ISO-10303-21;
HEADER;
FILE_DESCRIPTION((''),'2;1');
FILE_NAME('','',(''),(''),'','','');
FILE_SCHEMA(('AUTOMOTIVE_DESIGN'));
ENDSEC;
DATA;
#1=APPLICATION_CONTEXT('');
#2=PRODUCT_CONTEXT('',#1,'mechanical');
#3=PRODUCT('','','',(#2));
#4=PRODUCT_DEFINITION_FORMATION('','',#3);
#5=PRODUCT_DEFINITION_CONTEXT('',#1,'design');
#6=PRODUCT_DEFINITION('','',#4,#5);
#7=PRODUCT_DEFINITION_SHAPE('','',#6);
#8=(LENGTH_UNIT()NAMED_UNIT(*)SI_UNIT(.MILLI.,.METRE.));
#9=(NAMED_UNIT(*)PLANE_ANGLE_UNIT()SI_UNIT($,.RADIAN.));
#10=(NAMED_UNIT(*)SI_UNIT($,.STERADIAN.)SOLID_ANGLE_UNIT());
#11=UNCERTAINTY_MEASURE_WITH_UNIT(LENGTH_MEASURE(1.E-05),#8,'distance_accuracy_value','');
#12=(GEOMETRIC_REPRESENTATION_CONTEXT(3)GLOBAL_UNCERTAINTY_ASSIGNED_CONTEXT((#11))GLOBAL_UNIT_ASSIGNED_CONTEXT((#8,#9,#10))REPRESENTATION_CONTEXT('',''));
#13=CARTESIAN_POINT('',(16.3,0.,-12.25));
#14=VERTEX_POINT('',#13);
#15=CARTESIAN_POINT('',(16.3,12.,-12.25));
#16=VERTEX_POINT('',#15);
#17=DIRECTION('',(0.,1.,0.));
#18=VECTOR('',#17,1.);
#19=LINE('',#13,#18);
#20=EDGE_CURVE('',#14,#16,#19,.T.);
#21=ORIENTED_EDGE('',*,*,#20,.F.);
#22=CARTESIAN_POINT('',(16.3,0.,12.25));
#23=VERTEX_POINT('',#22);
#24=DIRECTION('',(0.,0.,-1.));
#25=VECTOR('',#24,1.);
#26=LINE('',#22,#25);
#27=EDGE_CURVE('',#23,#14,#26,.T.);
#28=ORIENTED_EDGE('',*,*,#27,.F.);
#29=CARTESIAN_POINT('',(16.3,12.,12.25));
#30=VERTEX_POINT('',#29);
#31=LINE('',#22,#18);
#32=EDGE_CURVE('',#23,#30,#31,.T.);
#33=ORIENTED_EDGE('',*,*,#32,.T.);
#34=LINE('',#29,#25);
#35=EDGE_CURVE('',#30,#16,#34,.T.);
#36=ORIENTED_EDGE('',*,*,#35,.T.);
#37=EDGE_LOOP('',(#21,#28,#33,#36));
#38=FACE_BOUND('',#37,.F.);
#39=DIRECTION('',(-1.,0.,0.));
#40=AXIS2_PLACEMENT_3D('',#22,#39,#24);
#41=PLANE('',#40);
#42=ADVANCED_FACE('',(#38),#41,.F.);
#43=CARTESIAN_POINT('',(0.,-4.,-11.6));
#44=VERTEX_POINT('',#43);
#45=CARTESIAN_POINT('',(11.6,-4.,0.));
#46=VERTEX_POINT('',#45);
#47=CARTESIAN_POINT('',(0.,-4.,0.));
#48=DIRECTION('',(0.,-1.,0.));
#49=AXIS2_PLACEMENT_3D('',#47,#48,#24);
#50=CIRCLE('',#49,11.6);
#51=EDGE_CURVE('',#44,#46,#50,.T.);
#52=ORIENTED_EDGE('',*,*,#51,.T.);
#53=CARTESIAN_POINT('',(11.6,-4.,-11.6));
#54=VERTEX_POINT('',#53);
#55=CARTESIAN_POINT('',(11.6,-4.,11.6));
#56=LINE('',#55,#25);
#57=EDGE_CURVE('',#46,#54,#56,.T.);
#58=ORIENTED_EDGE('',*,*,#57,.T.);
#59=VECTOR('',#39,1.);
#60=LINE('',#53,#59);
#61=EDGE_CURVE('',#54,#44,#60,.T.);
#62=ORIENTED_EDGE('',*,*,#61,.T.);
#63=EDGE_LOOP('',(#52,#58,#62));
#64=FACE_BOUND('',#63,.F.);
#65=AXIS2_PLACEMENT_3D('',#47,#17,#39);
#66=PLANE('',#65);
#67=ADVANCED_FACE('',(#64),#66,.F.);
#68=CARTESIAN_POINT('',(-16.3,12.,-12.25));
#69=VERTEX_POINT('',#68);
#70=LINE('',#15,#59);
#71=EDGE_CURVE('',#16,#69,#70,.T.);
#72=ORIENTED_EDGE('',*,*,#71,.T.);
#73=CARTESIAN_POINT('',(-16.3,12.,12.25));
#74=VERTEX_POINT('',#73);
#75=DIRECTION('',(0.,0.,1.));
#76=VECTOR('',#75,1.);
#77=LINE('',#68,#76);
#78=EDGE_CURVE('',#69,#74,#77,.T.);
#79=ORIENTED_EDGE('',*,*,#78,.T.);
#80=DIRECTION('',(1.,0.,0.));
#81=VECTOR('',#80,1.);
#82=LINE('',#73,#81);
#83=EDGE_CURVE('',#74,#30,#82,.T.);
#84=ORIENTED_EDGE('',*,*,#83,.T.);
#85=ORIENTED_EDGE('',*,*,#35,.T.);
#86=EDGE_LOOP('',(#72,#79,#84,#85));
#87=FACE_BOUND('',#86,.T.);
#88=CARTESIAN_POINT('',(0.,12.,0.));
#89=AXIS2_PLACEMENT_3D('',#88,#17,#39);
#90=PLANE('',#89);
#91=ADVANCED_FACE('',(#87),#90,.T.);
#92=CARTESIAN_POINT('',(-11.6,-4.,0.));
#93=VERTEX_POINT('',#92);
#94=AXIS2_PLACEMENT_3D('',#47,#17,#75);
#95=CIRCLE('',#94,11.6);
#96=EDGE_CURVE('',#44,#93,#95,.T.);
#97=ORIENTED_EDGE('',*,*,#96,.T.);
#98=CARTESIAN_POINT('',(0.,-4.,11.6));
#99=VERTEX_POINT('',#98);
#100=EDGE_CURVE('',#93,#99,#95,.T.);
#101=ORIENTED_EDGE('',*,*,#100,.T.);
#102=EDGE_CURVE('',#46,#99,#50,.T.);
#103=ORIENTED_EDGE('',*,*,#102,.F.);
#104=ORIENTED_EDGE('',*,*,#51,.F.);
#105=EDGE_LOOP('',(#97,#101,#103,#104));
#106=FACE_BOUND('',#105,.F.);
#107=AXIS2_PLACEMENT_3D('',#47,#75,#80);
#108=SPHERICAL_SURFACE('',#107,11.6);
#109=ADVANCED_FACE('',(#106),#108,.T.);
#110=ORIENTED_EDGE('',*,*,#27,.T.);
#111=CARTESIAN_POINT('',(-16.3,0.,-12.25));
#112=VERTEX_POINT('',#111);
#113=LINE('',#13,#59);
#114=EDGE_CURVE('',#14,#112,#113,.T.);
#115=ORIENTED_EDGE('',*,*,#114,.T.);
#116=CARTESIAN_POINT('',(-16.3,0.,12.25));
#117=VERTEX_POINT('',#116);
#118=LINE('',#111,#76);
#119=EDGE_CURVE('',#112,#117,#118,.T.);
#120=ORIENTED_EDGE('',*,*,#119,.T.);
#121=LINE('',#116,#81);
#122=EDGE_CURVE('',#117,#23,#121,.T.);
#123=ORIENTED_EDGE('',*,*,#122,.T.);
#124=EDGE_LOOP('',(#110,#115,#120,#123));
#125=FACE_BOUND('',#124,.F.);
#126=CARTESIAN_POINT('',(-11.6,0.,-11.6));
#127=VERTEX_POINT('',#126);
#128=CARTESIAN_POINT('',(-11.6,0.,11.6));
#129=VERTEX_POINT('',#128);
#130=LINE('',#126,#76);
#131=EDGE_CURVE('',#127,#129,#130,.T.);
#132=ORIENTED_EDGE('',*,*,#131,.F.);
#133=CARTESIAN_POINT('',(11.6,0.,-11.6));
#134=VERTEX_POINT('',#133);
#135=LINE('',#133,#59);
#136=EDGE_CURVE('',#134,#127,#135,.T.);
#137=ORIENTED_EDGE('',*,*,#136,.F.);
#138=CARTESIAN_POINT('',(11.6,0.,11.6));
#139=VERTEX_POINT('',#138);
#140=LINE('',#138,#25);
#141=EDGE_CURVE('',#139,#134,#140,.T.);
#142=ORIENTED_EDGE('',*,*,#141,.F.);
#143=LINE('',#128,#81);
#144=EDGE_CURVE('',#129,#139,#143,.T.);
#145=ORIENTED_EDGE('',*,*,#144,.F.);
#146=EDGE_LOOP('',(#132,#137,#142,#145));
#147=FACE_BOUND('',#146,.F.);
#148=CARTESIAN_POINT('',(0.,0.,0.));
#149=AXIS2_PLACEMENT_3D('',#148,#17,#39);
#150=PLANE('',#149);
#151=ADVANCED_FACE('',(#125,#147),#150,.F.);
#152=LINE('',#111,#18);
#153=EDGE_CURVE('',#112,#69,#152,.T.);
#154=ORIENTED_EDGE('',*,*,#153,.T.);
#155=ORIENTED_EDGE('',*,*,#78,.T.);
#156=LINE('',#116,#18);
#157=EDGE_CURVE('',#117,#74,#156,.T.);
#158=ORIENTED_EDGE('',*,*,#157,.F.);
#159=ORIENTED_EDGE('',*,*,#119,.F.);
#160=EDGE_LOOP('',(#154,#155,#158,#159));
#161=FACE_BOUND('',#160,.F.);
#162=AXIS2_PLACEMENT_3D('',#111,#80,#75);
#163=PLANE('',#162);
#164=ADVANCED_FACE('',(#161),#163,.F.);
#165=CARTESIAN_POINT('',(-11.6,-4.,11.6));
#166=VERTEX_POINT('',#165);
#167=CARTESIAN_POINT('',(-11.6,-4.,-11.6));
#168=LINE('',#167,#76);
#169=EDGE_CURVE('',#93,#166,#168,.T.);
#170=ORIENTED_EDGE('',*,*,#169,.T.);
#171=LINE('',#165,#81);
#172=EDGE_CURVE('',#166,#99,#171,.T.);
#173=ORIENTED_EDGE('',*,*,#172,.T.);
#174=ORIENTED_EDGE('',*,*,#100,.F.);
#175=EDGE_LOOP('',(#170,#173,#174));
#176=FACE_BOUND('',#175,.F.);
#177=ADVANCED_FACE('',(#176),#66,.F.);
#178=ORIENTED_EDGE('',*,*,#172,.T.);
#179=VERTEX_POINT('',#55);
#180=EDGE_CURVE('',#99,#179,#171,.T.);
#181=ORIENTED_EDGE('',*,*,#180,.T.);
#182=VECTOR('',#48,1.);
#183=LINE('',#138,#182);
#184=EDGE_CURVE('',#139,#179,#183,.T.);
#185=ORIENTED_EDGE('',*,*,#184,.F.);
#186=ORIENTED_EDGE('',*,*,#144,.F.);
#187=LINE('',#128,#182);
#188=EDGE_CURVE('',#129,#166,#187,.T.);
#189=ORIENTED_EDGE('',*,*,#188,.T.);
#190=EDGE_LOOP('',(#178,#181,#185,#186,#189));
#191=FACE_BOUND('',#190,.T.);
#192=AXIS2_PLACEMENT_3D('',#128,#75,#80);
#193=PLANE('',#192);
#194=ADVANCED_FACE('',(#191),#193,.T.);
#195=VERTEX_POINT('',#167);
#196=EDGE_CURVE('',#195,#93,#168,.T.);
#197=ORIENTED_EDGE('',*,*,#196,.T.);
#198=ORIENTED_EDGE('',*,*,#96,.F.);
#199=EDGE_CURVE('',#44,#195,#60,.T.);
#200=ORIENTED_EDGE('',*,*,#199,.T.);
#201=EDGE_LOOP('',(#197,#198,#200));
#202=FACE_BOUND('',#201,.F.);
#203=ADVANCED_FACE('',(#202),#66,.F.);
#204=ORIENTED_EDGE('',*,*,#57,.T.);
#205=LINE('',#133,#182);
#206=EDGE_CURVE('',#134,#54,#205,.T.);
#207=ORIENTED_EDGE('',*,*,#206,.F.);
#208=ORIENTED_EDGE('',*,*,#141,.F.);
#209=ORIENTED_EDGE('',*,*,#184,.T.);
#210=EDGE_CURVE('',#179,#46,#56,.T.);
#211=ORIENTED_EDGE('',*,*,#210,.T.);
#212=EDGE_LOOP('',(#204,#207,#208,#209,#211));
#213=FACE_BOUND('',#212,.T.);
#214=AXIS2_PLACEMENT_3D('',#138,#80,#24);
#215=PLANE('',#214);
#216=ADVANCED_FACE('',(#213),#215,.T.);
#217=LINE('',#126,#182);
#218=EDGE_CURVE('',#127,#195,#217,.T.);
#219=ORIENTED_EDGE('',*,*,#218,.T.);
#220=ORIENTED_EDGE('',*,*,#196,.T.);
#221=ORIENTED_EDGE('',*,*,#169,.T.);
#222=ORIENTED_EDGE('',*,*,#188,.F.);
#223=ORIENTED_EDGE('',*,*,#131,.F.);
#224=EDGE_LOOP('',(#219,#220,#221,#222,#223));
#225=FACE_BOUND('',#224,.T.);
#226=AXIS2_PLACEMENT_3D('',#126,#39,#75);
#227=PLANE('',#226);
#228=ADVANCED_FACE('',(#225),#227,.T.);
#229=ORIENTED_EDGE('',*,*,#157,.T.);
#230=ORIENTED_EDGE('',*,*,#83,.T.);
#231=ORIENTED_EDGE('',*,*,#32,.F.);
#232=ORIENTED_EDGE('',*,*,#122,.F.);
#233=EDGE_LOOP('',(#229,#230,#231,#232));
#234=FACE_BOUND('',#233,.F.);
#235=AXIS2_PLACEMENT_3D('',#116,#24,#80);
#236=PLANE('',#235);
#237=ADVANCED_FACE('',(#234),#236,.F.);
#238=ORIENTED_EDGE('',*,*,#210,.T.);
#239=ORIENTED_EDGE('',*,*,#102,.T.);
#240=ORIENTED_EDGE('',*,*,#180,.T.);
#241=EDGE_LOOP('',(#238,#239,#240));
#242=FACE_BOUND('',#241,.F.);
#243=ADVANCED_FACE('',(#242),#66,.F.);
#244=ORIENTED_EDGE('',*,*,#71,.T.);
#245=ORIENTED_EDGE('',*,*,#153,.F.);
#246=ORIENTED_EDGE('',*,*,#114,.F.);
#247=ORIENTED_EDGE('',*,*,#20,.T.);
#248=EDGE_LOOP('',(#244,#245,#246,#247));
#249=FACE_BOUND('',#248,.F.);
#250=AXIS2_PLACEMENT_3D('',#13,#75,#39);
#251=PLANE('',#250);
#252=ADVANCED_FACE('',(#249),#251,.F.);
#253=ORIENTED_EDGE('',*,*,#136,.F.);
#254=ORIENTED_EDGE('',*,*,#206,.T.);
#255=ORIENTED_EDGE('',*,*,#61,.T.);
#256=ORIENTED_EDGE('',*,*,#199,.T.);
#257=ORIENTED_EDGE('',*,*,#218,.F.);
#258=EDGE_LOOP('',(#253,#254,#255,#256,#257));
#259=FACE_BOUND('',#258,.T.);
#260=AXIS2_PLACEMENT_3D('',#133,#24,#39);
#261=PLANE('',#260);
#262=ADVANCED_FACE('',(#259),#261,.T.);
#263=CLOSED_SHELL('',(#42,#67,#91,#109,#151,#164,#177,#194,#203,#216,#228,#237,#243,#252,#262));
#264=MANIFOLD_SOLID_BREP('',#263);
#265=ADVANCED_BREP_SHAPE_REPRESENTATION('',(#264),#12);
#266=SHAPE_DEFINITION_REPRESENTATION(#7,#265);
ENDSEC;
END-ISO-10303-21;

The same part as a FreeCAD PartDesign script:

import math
import FreeCAD as App
import Part
import Sketcher
Q = App.Units.Quantity

doc = App.newDocument("Part")
body = doc.addObject("PartDesign::Body", "Body")

# Sketch on XZ plane
sketch1 = body.newObject("Sketcher::SketchObject", "Sketch")
sketch1.AttachmentSupport = (doc.getObject("XZ_Plane"), [""])
sketch1.MapMode = "FlatFace"
sketch1.addGeometry([
    Part.LineSegment(App.Vector(-16.3, -12.25, 0), App.Vector(-16.3, 12.25, 0)),
    Part.LineSegment(App.Vector(-16.3, 12.25, 0), App.Vector(16.3, 12.25, 0)),
    Part.LineSegment(App.Vector(16.3, 12.25, 0), App.Vector(16.3, -12.25, 0)),
    Part.LineSegment(App.Vector(16.3, -12.25, 0), App.Vector(-16.3, -12.25, 0)),
], False)
sketch1.addConstraint([
    Sketcher.Constraint("Coincident", 0, 2, 1, 1),
    Sketcher.Constraint("Coincident", 1, 2, 2, 1),
    Sketcher.Constraint("Coincident", 2, 2, 3, 1),
    Sketcher.Constraint("Coincident", 3, 2, 0, 1),
    Sketcher.Constraint("Vertical", 0),
    Sketcher.Constraint("Horizontal", 1),
    Sketcher.Constraint("Vertical", 2),
    Sketcher.Constraint("Horizontal", 3),
    Sketcher.Constraint("Symmetric", 0, 2, 2, 2, -1, 1),
    Sketcher.Constraint("DistanceX", 1, 1, 1, 2, Q("32.6 mm")),
    Sketcher.Constraint("DistanceY", 0, 1, 0, 2, Q("24.5 mm")),
])
pad1 = body.newObject("PartDesign::Pad", "Pad")
pad1.Profile = sketch1
pad1.Length = 12
pad1.Reversed = True

# Sketch on XZ plane
sketch2 = body.newObject("Sketcher::SketchObject", "Sketch001")
sketch2.AttachmentSupport = (doc.getObject("XZ_Plane"), [""])
sketch2.MapMode = "FlatFace"
sketch2.addGeometry([
    Part.LineSegment(App.Vector(-11.6, -11.6, 0), App.Vector(-11.6, 11.6, 0)),
    Part.LineSegment(App.Vector(-11.6, 11.6, 0), App.Vector(11.6, 11.6, 0)),
    Part.LineSegment(App.Vector(11.6, 11.6, 0), App.Vector(11.6, -11.6, 0)),
    Part.LineSegment(App.Vector(11.6, -11.6, 0), App.Vector(-11.6, -11.6, 0)),
], False)
sketch2.addConstraint([
    Sketcher.Constraint("Coincident", 0, 2, 1, 1),
    Sketcher.Constraint("Coincident", 1, 2, 2, 1),
    Sketcher.Constraint("Coincident", 2, 2, 3, 1),
    Sketcher.Constraint("Coincident", 3, 2, 0, 1),
    Sketcher.Constraint("Vertical", 0),
    Sketcher.Constraint("Horizontal", 1),
    Sketcher.Constraint("Vertical", 2),
    Sketcher.Constraint("Horizontal", 3),
    Sketcher.Constraint("Symmetric", 0, 2, 2, 2, -1, 1),
    Sketcher.Constraint("Equal", 3, 0),
    Sketcher.Constraint("DistanceX", 1, 1, 1, 2, Q("23.2 mm")),
])
pad2 = body.newObject("PartDesign::Pad", "Pad001")
pad2.Profile = sketch2
pad2.Length = 4

# Sketch on XZ plane
sketch3 = body.newObject("Sketcher::SketchObject", "Sketch002")
sketch3.AttachmentSupport = (doc.getObject("XZ_Plane"), [""])
sketch3.MapMode = "FlatFace"
sketch3.AttachmentOffset = App.Placement(App.Vector(0, 0, 4), App.Rotation())
sketch3.addGeometry([
    Part.ArcOfCircle(Part.Circle(App.Vector(0, 0, 0), App.Vector(0, 0, 1), 11.6), math.radians(-90), math.radians(90)),
    Part.LineSegment(App.Vector(0, 11.6, 0), App.Vector(0, -11.6, 0)),
], False)
sketch3.addConstraint([
    Sketcher.Constraint("Coincident", 0, 1, 1, 2),
    Sketcher.Constraint("Coincident", 1, 1, 0, 2),
    Sketcher.Constraint("Vertical", 1),
    Sketcher.Constraint("Coincident", 0, 3, -1, 1),
    Sketcher.Constraint("PointOnObject", 0, 1, -2),
    Sketcher.Constraint("Radius", 0, Q("11.6 mm")),
])
revolution = body.newObject("PartDesign::Revolution", "Revolution")
revolution.Profile = sketch3
revolution.ReferenceAxis = (sketch3, ["V_Axis"])
revolution.Angle = 360

doc.recompute()
